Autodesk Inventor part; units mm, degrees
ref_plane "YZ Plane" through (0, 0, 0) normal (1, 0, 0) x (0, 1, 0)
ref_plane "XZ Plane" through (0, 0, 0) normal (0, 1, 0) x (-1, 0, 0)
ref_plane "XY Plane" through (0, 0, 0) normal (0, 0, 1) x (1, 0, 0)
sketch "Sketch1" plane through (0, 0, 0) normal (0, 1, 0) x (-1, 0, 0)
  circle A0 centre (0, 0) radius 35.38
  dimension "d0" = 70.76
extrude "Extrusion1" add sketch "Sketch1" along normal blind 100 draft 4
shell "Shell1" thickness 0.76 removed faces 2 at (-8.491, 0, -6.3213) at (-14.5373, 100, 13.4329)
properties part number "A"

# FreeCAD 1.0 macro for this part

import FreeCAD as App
import Part
import Sketcher
from FreeCAD import Vector
Q = App.Units.Quantity


def faces_at(feature, points):
    """Names of the faces that lie closest to the given points."""
    faces = feature.Shape.Faces
    near = lambda p: min(range(len(faces)), key=lambda i: faces[i].distToShape(Part.Vertex(*p))[0])
    return sorted({f"Face{near(p) + 1}" for p in points})

doc = App.newDocument("Part")
params = doc.addObject("Spreadsheet::Sheet", "Params")
for row, (alias, value) in enumerate([
    ("pad1_length", "3.9370079 in"),
    ("pad1_taper", "4 deg"),
    ("thickness_wall", "0.76 mm"),
], start=1):
    params.set(f"A{row}", alias)
    params.set(f"B{row}", "=" + value)
    params.setAlias(f"B{row}", alias)

body = doc.addObject("PartDesign::Body", "Body")

sketch1 = doc.addObject("Sketcher::SketchObject", "Sketch")
body.addObject(sketch1)
sketch1.AttachmentSupport = (doc.XZ_Plane, [""])
sketch1.MapMode = "FlatFace"
sketch1.addGeometry(Part.Circle(Vector(0, 0, 0), Vector(0, 0, 1), 35.38), False)
sketch1.addConstraint([
    Sketcher.Constraint("Coincident", 0, 3, -1, 1),
    Sketcher.Constraint("Diameter", 0, Q("70.76 mm")),
])
pad1 = doc.addObject("PartDesign::Pad", "Pad")
body.addObject(pad1)
pad1.Profile = sketch1
pad1.setExpression("Length", "Params.pad1_length")
pad1.Reversed = True
pad1.setExpression("TaperAngle", "Params.pad1_taper")
doc.recompute()

thickness = doc.addObject("PartDesign::Thickness", "Thickness")
body.addObject(thickness)
thickness.Base = (pad1, faces_at(pad1, [(-8.491, 0, -6.321), (-14.537, 100, 13.433)]))
thickness.setExpression("Value", "Params.thickness_wall")
thickness.Reversed = True
thickness.Join = "Intersection"

doc.recompute()
